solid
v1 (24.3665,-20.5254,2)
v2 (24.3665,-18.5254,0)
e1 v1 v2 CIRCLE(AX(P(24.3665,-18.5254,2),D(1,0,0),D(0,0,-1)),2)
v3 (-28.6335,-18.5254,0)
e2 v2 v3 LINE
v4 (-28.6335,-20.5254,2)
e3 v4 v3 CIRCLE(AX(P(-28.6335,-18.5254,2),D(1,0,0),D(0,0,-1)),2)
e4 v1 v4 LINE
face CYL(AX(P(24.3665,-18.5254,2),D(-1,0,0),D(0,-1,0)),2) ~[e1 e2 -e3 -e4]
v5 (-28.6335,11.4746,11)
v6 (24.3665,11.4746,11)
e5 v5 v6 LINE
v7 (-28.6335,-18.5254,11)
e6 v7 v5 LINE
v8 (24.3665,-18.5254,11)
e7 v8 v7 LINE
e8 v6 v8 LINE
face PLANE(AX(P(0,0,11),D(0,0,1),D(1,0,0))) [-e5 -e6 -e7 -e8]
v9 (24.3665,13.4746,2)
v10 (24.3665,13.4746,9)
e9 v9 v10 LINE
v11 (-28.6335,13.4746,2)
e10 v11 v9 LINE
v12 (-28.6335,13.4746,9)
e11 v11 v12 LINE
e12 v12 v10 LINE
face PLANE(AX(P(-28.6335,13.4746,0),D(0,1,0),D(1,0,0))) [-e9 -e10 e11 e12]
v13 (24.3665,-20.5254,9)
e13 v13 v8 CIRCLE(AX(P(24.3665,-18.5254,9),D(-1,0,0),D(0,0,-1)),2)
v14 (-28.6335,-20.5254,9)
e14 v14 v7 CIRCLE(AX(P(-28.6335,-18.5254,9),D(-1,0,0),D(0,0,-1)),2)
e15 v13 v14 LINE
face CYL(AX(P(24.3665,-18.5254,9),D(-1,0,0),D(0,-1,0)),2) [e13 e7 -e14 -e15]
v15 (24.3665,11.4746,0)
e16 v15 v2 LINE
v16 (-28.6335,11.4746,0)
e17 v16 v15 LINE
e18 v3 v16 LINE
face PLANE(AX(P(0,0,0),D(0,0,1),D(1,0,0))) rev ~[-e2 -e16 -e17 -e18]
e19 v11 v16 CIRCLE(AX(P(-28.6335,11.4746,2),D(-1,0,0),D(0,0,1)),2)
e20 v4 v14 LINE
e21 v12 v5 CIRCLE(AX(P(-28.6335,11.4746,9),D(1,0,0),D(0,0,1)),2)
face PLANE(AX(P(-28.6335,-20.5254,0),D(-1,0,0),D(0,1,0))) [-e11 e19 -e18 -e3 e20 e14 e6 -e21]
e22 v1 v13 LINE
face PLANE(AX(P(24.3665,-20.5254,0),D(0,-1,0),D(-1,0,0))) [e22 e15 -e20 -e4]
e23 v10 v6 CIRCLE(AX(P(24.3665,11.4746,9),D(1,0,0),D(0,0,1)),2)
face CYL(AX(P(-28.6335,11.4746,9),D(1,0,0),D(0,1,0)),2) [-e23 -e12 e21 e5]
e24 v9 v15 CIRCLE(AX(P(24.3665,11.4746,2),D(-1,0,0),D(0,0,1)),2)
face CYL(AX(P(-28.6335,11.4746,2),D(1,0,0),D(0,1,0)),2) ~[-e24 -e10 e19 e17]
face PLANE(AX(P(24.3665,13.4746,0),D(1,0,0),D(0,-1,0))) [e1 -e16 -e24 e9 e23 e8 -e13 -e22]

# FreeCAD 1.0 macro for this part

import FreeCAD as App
import Part
import Sketcher
Q = App.Units.Quantity


def edges_at(feature, points):
    """Names of the edges that pass closest to the given points."""
    edges = feature.Shape.Edges
    near = lambda p: min(range(len(edges)), key=lambda i: edges[i].distToShape(Part.Vertex(*p))[0])
    return sorted({f"Edge{near(p) + 1}" for p in points})


def add_polygon(sketch, points):
    """Adds a closed chain of lines whose ends are joined by coincident constraints."""
    first, n = sketch.GeometryCount, len(points)
    for a, b in zip(points, points[1:] + points[:1]):
        sketch.addGeometry(Part.LineSegment(App.Vector(*a, 0), App.Vector(*b, 0)), False)
    for i in range(n):
        sketch.addConstraint(Sketcher.Constraint("Coincident", first + i, 2, first + (i + 1) % n, 1))

doc = App.newDocument("Part")
params = doc.addObject("Spreadsheet::Sheet", "Params")
for row, (alias, value) in enumerate([
    ("sketch1_width", "53 mm"),
    ("sketch1_height", "34 mm"),
    ("pad1_length", "11 mm"),
    ("fillet_radius", "2 mm"),
], start=1):
    params.set(f"A{row}", alias)
    params.set(f"B{row}", "=" + value)
    params.setAlias(f"B{row}", alias)

body = doc.addObject("PartDesign::Body", "Body")

sketch1 = body.newObject("Sketcher::SketchObject", "Sketch")
sketch1.AttachmentSupport = (doc.getObject("XY_Plane"), [""])
sketch1.MapMode = "FlatFace"
add_polygon(sketch1, [(24, 13), (-29, 13), (-29, -21), (24, -21)])
sketch1.addConstraint(Sketcher.Constraint("Horizontal", 0))
sketch1.addConstraint(Sketcher.Constraint("Vertical", 1))
sketch1.addConstraint(Sketcher.Constraint("Horizontal", 2))
sketch1.addConstraint(Sketcher.Constraint("Vertical", 3))
sketch1.addConstraint(Sketcher.Constraint("DistanceX", 0, 2, 0, 1, Q("53 mm")))
sketch1.addConstraint(Sketcher.Constraint("DistanceY", 1, 2, 1, 1, Q("34 mm")))
sketch1.addConstraint(Sketcher.Constraint("DistanceX", 0, 2, -1, 1, Q("28.6335 mm")))
sketch1.addConstraint(Sketcher.Constraint("DistanceY", -1, 1, 0, 2, Q("13.4746 mm")))
sketch1.setExpression("Constraints[8]", "Params.sketch1_width")
sketch1.setExpression("Constraints[9]", "Params.sketch1_height")
pad1 = body.newObject("PartDesign::Pad", "Pad")
pad1.Profile = sketch1
pad1.setExpression("Length", "Params.pad1_length")
doc.recompute()

fillet = body.newObject("PartDesign::Fillet", "Fillet")
fillet.Base = (pad1, edges_at(pad1, [
    (-2.134, 13.475, 11),
    (-2.134, 13.475, 0),
    (-2.134, -20.525, 11),
    (-2.134, -20.525, 0),
]))
fillet.setExpression("Radius", "Params.fillet_radius")

doc.recompute()
